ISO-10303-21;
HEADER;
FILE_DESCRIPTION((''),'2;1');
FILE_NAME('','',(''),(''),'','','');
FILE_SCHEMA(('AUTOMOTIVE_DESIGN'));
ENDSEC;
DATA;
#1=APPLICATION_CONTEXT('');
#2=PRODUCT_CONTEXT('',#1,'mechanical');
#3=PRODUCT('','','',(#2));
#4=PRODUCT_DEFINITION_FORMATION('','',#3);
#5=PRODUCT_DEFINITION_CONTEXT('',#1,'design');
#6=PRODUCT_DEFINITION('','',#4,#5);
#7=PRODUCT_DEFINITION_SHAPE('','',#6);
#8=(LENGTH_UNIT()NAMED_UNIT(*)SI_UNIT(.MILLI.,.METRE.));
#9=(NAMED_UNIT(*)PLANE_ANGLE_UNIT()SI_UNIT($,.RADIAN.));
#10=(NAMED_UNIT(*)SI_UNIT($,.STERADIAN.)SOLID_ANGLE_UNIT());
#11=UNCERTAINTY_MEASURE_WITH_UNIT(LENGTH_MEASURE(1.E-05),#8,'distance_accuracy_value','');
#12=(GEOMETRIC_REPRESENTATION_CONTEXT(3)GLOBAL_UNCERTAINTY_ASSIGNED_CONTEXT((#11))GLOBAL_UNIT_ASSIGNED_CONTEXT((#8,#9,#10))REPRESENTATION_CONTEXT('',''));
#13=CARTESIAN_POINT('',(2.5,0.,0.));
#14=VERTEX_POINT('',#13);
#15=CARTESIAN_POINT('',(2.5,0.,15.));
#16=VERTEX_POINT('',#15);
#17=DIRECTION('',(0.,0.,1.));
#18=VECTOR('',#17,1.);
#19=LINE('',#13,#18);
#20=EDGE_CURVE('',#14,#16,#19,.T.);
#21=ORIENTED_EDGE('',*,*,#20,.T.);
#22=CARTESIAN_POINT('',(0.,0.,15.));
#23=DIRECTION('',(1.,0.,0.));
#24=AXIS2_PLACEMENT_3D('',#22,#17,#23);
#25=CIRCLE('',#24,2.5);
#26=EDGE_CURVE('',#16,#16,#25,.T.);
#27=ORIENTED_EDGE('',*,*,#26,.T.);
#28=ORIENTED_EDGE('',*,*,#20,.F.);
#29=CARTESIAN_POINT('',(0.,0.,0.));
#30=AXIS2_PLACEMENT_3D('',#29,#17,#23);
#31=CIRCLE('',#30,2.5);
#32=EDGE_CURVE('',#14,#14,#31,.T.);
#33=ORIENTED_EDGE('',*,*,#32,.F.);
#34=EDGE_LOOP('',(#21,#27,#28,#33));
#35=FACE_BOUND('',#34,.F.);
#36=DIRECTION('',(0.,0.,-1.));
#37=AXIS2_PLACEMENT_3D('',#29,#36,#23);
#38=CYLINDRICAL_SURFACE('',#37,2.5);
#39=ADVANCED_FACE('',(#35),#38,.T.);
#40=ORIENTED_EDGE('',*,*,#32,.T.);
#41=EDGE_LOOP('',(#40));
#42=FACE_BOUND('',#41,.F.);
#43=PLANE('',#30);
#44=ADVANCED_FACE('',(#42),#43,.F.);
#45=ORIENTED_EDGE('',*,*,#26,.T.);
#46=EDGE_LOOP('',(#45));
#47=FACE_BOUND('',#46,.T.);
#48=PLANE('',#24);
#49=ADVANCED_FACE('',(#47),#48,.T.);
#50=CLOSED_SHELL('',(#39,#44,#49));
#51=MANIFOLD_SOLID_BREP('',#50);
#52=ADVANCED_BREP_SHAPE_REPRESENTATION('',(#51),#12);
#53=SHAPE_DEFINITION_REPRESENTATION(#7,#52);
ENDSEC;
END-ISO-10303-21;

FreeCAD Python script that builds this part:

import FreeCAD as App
import Part
import Sketcher

V = App.Vector
Q = App.Units.Quantity

doc = App.newDocument("Part")
body = doc.addObject("PartDesign::Body", "Body")

sketch1 = body.newObject("Sketcher::SketchObject", "Sketch")
sketch1.AttachmentSupport = (doc.getObject("XY_Plane"), [""])
sketch1.MapMode = "FlatFace"
sketch1.addGeometry(Part.Circle(V(0, 0, 0), V(0, 0, 1), 2.5), False)
sketch1.addConstraint([
    Sketcher.Constraint("Coincident", 0, 3, -1, 1),
    Sketcher.Constraint("Diameter", 0, Q("5 mm")),
])
pad1 = body.newObject("PartDesign::Pad", "Pad")
pad1.Profile = sketch1
pad1.Length = 15

doc.recompute()
